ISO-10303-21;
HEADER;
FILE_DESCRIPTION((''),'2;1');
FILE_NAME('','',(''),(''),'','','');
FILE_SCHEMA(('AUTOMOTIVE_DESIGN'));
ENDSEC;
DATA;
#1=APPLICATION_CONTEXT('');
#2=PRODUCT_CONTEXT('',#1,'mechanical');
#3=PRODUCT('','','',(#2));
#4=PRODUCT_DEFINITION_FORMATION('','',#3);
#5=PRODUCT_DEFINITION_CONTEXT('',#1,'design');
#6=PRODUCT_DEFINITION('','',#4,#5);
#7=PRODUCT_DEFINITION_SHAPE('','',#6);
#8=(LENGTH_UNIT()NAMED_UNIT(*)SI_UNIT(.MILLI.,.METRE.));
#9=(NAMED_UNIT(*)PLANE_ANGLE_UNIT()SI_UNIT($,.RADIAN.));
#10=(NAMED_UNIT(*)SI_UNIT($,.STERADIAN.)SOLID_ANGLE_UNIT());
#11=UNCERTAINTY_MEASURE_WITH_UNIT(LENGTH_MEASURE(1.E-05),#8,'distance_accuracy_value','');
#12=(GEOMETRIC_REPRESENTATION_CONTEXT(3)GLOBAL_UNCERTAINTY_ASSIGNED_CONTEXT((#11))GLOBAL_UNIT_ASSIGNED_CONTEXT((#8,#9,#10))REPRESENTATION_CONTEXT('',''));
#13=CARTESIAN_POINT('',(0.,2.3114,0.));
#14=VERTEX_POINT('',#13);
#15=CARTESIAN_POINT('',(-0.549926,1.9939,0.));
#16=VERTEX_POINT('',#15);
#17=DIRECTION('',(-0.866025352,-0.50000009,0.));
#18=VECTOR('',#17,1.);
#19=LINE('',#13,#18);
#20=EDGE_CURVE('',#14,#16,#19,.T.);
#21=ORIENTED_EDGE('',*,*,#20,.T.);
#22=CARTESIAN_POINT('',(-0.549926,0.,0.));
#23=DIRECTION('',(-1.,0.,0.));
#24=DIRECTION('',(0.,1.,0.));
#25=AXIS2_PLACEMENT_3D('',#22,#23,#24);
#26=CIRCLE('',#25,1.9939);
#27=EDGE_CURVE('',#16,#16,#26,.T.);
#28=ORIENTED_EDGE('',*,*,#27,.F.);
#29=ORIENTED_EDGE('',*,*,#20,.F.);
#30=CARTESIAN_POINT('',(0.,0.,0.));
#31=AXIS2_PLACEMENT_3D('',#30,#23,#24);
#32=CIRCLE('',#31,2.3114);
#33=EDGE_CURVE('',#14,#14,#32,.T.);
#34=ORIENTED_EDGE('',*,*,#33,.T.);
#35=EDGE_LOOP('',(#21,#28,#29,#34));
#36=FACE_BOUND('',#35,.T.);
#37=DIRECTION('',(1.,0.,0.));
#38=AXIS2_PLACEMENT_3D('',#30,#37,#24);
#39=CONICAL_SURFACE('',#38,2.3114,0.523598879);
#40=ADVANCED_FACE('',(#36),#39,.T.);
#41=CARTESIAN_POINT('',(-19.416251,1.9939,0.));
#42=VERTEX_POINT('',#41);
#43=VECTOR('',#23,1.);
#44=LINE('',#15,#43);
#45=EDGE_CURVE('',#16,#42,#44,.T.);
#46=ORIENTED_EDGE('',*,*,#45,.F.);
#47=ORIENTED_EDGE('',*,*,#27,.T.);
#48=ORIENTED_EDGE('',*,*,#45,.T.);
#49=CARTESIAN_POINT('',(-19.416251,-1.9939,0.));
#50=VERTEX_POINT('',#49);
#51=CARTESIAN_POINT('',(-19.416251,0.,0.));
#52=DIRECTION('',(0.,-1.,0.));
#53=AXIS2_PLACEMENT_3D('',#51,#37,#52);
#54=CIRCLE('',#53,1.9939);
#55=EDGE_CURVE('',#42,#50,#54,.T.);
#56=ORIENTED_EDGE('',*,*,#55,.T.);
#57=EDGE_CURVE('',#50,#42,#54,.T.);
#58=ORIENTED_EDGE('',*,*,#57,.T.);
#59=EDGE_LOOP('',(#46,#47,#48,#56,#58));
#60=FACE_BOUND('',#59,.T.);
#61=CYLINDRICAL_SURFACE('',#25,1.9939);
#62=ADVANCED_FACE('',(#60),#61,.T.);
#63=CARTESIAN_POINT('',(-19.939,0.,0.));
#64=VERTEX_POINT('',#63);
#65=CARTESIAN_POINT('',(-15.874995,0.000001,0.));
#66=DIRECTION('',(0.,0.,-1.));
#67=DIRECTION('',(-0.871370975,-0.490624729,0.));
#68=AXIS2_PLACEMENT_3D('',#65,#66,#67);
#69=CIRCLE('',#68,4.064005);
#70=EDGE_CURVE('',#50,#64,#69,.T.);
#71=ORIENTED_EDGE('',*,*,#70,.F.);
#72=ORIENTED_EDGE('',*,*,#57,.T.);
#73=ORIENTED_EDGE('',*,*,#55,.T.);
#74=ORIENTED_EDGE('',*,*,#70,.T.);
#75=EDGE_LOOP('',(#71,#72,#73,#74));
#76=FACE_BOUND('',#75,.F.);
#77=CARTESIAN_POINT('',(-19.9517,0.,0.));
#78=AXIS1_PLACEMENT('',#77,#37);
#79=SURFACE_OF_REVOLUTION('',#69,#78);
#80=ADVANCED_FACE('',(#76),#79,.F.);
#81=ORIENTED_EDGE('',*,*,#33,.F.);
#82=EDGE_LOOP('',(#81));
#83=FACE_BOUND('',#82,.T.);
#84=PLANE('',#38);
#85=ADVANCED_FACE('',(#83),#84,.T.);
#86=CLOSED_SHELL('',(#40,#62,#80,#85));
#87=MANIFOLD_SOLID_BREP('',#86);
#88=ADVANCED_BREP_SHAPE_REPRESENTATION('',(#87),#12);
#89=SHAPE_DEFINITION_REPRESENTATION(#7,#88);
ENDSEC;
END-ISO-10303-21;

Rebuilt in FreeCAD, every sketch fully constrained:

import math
import FreeCAD as App
import Part
import Sketcher
from FreeCAD import Vector
Q = App.Units.Quantity


def add_polygon(sketch, points):
    """Adds a closed chain of lines whose ends are joined by coincident constraints."""
    first, n = sketch.GeometryCount, len(points)
    for a, b in zip(points, points[1:] + points[:1]):
        sketch.addGeometry(Part.LineSegment(App.Vector(*a, 0), App.Vector(*b, 0)), False)
    for i in range(n):
        sketch.addConstraint(Sketcher.Constraint("Coincident", first + i, 2, first + (i + 1) % n, 1))

doc = App.newDocument("Part")
body = doc.addObject("PartDesign::Body", "Body")

# Sketch on YZ plane
sketch1 = doc.addObject("Sketcher::SketchObject", "Sketch")
body.addObject(sketch1)
sketch1.AttachmentSupport = (doc.YZ_Plane, [""])
sketch1.MapMode = "FlatFace"
sketch1.addGeometry(Part.Circle(Vector(0, 0, 0), Vector(0, 0, 1), 2), False)
sketch1.addConstraint([
    Sketcher.Constraint("Coincident", 0, 3, -1, 1),
    Sketcher.Constraint("Diameter", 0, Q("0.157 in")),
])
pad1 = doc.addObject("PartDesign::Pad", "Pad")
body.addObject(pad1)
pad1.Profile = sketch1
pad1.Length = Q("0.786 in")
pad1.Reversed = True

# Sketch on XY plane
sketch2 = doc.addObject("Sketcher::SketchObject", "Sketch001")
body.addObject(sketch2)
sketch2.AttachmentSupport = (doc.XY_Plane, [""])
sketch2.MapMode = "FlatFace"
add_polygon(sketch2, [(-0.55, 1.994), (-0.594, 1.994), (-0.594, 0), (0, 0), (0, 2.311)])  # lines 0-4
sketch2.addConstraint([
    Sketcher.Constraint("Horizontal", 0),
    Sketcher.Constraint("Vertical", 1),
    Sketcher.Constraint("Horizontal", 2),
    Sketcher.Constraint("Vertical", 3),
    Sketcher.Constraint("Coincident", 2, 2, -1, 1),
    Sketcher.Constraint("Angle", 4, Q("-149.999994 deg")),
    Sketcher.Constraint("DistanceY", 3, 1, 3, 2, Q("0.091 in")),
    Sketcher.Constraint("Distance", 4, Q("0.025 in")),
    Sketcher.Constraint("DistanceX", 2, 1, 2, 2, Q("0.594271 mm")),
])
revolution = doc.addObject("PartDesign::Revolution", "Revolution")
body.addObject(revolution)
revolution.Profile = sketch2
revolution.ReferenceAxis = (sketch2, ["H_Axis"])
revolution.Angle = 360

# Sketch on XY plane
sketch3 = doc.addObject("Sketcher::SketchObject", "Sketch002")
body.addObject(sketch3)
sketch3.AttachmentSupport = (doc.XY_Plane, [""])
sketch3.MapMode = "FlatFace"
sketch3.addGeometry([
    Part.LineSegment(Vector(-19.939, 0, 0), Vector(-19.964, 0, 0)),
    Part.LineSegment(Vector(-19.964, 0, 0), Vector(-19.964, -1.994, 0)),
    Part.LineSegment(Vector(-19.964, -1.994, 0), Vector(-19.416, -1.994, 0)),
    Part.ArcOfCircle(Part.Circle(Vector(-15.875, 0, 0), Vector(0, 0, 1), 4.064), math.radians(-180), math.radians(-151)),
], False)
sketch3.addConstraint([
    Sketcher.Constraint("Coincident", 0, 2, 1, 1),
    Sketcher.Constraint("Coincident", 1, 2, 2, 1),
    Sketcher.Constraint("Coincident", 2, 2, 3, 2),
    Sketcher.Constraint("Coincident", 3, 1, 0, 1),
    Sketcher.Constraint("Horizontal", 0),
    Sketcher.Constraint("Vertical", 1),
    Sketcher.Constraint("Horizontal", 2),
    Sketcher.Constraint("PointOnObject", 3, 3, -1),
    Sketcher.Constraint("PointOnObject", 0, 2, -1),
    Sketcher.Constraint("Radius", 3, Q("0.1600002 in")),
    Sketcher.Constraint("DistanceX", 0, 2, 0, 1, Q("0.001 in")),
    Sketcher.Constraint("DistanceY", 1, 2, 1, 1, Q("0.0785 in")),
    Sketcher.Constraint("DistanceX", 3, 3, -1, 1, Q("0.6249998 in")),
])
groove = doc.addObject("PartDesign::Groove", "Groove")
body.addObject(groove)
groove.Profile = sketch3
groove.ReferenceAxis = (sketch3, ["H_Axis"])
groove.Angle = 360

doc.recompute()
